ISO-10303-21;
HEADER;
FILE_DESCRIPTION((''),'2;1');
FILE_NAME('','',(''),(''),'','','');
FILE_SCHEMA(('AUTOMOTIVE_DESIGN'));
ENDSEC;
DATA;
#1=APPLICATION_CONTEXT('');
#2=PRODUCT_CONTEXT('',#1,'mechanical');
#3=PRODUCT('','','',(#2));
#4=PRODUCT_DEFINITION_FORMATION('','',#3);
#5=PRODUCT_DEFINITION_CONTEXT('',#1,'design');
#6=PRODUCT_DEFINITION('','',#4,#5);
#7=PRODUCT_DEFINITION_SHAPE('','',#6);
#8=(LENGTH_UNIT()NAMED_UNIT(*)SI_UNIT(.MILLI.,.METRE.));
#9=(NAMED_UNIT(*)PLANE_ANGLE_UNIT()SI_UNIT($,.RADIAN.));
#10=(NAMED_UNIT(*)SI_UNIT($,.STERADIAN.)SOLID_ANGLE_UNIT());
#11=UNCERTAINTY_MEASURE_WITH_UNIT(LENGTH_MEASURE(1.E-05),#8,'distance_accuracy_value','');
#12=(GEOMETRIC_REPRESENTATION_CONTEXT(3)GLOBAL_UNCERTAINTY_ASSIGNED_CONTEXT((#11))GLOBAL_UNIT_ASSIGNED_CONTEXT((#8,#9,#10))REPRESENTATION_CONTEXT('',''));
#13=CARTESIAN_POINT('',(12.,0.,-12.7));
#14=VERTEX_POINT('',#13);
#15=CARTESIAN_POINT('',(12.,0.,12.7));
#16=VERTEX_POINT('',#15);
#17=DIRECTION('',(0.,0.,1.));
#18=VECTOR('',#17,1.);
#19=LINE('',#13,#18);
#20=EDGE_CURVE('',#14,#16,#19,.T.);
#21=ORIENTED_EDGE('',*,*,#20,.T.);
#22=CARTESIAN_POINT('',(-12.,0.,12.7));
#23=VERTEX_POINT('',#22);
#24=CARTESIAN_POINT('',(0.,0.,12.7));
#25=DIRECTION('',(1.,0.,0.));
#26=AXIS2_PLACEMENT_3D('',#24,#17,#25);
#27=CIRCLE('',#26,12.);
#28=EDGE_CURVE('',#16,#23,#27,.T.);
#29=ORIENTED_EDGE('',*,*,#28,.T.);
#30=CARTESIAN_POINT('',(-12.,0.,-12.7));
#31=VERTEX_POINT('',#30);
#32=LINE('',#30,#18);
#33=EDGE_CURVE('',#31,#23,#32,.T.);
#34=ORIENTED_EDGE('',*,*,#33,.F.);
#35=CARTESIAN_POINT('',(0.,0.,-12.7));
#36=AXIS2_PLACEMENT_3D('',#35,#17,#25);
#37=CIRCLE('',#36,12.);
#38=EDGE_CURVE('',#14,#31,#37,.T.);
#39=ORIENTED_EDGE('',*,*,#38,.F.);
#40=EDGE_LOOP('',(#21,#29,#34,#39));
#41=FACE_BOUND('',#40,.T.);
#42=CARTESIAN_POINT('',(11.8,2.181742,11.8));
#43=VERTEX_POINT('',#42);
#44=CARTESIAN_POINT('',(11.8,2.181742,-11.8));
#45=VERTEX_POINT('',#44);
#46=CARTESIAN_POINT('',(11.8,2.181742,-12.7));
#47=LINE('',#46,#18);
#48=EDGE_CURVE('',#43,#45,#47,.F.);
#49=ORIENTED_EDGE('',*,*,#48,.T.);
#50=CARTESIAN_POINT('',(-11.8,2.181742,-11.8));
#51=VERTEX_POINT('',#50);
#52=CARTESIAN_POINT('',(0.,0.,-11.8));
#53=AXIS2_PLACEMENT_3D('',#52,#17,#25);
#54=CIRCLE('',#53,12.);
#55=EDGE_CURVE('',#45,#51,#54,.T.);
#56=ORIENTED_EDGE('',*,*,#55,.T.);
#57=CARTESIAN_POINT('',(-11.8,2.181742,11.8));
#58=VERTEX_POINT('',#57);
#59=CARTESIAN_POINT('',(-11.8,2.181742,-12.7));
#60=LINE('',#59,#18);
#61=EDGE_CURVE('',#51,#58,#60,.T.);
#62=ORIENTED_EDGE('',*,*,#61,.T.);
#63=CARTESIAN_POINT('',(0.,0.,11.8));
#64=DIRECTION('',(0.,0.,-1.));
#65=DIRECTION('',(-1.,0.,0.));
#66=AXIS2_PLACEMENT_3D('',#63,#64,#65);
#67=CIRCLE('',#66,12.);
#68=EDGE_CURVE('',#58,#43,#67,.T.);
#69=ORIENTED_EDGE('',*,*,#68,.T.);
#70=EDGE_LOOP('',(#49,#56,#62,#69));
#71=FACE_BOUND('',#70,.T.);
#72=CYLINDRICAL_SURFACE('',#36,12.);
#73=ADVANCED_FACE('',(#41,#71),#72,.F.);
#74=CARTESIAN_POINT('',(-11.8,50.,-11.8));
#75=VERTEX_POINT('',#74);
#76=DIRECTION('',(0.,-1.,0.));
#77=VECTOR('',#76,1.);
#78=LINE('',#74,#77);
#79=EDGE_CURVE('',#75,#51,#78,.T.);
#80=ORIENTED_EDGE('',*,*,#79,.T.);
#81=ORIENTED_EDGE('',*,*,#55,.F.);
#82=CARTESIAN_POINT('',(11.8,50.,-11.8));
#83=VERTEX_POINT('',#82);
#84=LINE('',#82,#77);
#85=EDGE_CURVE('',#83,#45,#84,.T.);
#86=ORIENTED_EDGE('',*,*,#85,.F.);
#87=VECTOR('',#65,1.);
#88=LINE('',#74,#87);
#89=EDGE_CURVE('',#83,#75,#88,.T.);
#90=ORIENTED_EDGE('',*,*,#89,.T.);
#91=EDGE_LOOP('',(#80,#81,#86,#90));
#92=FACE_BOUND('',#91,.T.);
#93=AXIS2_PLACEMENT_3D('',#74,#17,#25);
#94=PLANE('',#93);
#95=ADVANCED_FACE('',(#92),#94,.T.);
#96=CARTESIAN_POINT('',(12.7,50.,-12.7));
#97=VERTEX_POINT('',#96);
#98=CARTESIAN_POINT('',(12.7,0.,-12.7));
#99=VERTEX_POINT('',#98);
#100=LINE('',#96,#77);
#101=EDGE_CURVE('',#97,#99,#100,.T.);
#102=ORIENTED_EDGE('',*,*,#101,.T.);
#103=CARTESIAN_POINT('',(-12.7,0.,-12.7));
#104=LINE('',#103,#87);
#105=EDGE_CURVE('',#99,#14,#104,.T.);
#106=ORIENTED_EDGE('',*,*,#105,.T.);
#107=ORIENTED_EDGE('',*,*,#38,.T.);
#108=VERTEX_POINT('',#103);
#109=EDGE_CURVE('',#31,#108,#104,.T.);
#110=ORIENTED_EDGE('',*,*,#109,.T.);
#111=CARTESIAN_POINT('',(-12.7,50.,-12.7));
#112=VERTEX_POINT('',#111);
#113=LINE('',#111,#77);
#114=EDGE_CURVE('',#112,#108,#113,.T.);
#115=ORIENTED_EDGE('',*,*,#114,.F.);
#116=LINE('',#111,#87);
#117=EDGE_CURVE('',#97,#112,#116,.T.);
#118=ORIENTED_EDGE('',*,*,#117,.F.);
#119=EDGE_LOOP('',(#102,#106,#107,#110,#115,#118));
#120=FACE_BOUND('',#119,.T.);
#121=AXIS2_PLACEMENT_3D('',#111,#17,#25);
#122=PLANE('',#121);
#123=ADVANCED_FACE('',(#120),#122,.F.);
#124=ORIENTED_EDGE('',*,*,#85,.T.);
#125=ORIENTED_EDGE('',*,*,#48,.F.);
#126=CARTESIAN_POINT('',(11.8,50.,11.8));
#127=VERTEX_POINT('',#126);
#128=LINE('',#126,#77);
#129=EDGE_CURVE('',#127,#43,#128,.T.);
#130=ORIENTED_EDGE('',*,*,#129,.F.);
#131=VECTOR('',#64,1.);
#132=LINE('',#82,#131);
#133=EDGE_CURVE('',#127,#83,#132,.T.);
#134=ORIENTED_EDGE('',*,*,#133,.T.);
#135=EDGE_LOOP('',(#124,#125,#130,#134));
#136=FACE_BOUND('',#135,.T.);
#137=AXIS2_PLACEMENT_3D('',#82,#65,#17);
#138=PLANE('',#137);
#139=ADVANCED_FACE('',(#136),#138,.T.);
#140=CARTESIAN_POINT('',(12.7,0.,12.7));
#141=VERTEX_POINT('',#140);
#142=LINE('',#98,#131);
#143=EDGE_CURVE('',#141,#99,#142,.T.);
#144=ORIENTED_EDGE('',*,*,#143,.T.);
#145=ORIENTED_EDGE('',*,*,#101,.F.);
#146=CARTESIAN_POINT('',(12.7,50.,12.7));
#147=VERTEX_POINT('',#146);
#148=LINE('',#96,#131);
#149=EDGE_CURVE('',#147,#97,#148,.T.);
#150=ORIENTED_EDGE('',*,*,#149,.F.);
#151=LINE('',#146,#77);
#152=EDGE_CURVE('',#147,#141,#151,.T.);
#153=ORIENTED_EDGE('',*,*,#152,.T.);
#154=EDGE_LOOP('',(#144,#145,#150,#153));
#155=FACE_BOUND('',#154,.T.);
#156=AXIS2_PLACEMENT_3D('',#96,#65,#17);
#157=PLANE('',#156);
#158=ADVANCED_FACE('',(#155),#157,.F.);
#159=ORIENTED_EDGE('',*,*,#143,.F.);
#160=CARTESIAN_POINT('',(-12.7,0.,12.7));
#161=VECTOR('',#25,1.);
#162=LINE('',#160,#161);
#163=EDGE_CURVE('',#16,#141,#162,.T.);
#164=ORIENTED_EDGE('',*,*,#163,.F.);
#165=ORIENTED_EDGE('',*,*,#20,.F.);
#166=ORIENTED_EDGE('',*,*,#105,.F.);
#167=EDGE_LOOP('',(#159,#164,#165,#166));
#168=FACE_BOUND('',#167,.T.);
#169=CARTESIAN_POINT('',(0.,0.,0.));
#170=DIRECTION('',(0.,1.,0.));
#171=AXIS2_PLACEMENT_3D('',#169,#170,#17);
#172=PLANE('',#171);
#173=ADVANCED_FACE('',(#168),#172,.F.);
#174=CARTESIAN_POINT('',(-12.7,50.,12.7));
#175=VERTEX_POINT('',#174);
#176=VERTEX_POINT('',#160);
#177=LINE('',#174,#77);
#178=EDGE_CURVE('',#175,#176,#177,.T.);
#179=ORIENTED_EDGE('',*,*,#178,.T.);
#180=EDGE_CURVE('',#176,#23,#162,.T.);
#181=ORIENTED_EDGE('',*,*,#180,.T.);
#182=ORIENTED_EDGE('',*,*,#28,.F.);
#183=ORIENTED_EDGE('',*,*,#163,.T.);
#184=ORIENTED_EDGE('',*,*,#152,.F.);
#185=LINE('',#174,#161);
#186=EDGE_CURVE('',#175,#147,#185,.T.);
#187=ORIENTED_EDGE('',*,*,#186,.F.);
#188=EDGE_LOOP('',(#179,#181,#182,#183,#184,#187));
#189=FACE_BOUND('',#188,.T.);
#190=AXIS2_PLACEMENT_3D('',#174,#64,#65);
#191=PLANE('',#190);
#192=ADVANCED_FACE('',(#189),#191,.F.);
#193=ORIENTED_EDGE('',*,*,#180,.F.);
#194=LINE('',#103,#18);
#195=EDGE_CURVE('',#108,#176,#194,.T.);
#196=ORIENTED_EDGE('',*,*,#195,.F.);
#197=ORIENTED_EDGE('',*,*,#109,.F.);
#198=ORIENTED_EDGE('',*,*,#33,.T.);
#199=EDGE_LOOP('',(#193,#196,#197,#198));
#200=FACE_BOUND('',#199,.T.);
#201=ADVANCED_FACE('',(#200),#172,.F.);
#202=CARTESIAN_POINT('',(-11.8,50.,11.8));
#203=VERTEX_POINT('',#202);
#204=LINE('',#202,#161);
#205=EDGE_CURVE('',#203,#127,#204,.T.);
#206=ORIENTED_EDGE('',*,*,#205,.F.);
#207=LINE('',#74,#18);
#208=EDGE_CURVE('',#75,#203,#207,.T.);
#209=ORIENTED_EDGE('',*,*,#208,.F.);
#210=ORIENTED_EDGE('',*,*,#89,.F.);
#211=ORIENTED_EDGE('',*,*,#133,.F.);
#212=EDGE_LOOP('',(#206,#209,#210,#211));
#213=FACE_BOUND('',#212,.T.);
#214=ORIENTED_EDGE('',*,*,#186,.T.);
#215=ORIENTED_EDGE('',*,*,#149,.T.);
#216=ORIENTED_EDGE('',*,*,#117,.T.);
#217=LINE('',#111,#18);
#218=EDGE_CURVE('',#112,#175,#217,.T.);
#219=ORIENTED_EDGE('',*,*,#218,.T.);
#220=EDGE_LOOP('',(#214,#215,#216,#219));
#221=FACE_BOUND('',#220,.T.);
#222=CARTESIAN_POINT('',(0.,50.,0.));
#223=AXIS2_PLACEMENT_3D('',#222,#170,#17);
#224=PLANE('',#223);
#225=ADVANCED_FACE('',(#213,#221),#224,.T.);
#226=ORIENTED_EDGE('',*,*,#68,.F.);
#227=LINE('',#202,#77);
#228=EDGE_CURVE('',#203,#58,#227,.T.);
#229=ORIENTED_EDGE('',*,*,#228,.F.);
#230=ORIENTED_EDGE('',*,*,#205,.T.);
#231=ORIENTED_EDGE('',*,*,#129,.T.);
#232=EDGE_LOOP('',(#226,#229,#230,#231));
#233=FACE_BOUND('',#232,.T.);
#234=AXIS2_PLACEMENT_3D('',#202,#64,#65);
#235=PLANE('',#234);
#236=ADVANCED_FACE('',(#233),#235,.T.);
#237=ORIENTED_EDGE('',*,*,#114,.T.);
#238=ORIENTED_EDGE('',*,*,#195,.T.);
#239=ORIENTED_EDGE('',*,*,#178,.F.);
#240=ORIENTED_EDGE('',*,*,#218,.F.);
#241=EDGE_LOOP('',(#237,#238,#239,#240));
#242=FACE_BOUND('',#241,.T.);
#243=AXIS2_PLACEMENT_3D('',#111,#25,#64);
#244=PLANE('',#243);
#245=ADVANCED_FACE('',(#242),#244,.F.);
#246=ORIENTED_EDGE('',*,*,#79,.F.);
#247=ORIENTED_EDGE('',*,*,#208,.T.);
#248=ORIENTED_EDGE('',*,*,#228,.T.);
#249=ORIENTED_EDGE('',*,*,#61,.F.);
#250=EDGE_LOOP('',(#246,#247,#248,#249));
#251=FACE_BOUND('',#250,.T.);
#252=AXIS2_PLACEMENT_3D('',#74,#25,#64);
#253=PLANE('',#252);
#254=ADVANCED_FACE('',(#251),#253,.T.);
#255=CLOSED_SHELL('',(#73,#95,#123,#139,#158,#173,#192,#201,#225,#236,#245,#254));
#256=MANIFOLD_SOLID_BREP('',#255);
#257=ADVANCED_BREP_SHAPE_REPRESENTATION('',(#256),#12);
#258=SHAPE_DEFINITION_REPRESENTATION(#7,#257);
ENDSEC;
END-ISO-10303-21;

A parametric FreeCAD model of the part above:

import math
import FreeCAD as App
import Part
import Sketcher
from FreeCAD import Vector
Q = App.Units.Quantity


def add_polygon(sketch, points):
    """Adds a closed chain of lines whose ends are joined by coincident constraints."""
    first, n = sketch.GeometryCount, len(points)
    for a, b in zip(points, points[1:] + points[:1]):
        sketch.addGeometry(Part.LineSegment(App.Vector(*a, 0), App.Vector(*b, 0)), False)
    for i in range(n):
        sketch.addConstraint(Sketcher.Constraint("Coincident", first + i, 2, first + (i + 1) % n, 1))

doc = App.newDocument("Part")
body = doc.addObject("PartDesign::Body", "Body")

# Sketch on XZ plane
sketch1 = doc.addObject("Sketcher::SketchObject", "Sketch")
body.addObject(sketch1)
sketch1.AttachmentSupport = (doc.XZ_Plane, [""])
sketch1.MapMode = "FlatFace"
add_polygon(sketch1, [(-13, -13), (-13, 13), (13, 13), (13, -13)])  # lines 0-3
add_polygon(sketch1, [(12, 12), (-12, 12), (-12, -12), (12, -12)])  # lines 4-7
sketch1.addConstraint([
    Sketcher.Constraint("Vertical", 0),
    Sketcher.Constraint("Horizontal", 1),
    Sketcher.Constraint("Vertical", 2),
    Sketcher.Constraint("Horizontal", 3),
    Sketcher.Constraint("Horizontal", 4),
    Sketcher.Constraint("Vertical", 5),
    Sketcher.Constraint("Horizontal", 6),
    Sketcher.Constraint("Vertical", 7),
    Sketcher.Constraint("Symmetric", 0, 2, 2, 2, -1, 1),
    Sketcher.Constraint("Symmetric", 4, 2, 6, 2, -1, 1),
    Sketcher.Constraint("Equal", 3, 0),
    Sketcher.Constraint("Equal", 6, 5),
    Sketcher.Constraint("DistanceX", 1, 1, 1, 2, Q("25.4 mm")),
    Sketcher.Constraint("DistanceX", 4, 2, 4, 1, Q("23.6 mm")),
])
pad1 = doc.addObject("PartDesign::Pad", "Pad")
body.addObject(pad1)
pad1.Profile = sketch1
pad1.Length = 50
pad1.Reversed = True

# Sketch on XY plane
sketch2 = doc.addObject("Sketcher::SketchObject", "Sketch001")
body.addObject(sketch2)
sketch2.AttachmentSupport = (doc.XY_Plane, [""])
sketch2.MapMode = "FlatFace"
sketch2.AttachmentOffset = App.Placement(Vector(0, 0, 12.7), App.Rotation())
sketch2.addGeometry([
    Part.LineSegment(Vector(-12, 0, 0), Vector(12, 0, 0)),
    Part.ArcOfCircle(Part.Circle(Vector(0, 0, 0), Vector(0, 0, 1), 12), math.radians(0), math.radians(180)),
], False)
sketch2.addConstraint([
    Sketcher.Constraint("Coincident", 0, 1, 1, 2),
    Sketcher.Constraint("Coincident", 1, 1, 0, 2),
    Sketcher.Constraint("Horizontal", 0),
    Sketcher.Constraint("Coincident", 1, 3, -1, 1),
    Sketcher.Constraint("PointOnObject", 0, 1, -1),
    Sketcher.Constraint("Radius", 1, Q("12 mm")),
])
pocket1 = doc.addObject("PartDesign::Pocket", "Pocket")
body.addObject(pocket1)
pocket1.Profile = sketch2
pocket1.Length = 25.4

doc.recompute()
